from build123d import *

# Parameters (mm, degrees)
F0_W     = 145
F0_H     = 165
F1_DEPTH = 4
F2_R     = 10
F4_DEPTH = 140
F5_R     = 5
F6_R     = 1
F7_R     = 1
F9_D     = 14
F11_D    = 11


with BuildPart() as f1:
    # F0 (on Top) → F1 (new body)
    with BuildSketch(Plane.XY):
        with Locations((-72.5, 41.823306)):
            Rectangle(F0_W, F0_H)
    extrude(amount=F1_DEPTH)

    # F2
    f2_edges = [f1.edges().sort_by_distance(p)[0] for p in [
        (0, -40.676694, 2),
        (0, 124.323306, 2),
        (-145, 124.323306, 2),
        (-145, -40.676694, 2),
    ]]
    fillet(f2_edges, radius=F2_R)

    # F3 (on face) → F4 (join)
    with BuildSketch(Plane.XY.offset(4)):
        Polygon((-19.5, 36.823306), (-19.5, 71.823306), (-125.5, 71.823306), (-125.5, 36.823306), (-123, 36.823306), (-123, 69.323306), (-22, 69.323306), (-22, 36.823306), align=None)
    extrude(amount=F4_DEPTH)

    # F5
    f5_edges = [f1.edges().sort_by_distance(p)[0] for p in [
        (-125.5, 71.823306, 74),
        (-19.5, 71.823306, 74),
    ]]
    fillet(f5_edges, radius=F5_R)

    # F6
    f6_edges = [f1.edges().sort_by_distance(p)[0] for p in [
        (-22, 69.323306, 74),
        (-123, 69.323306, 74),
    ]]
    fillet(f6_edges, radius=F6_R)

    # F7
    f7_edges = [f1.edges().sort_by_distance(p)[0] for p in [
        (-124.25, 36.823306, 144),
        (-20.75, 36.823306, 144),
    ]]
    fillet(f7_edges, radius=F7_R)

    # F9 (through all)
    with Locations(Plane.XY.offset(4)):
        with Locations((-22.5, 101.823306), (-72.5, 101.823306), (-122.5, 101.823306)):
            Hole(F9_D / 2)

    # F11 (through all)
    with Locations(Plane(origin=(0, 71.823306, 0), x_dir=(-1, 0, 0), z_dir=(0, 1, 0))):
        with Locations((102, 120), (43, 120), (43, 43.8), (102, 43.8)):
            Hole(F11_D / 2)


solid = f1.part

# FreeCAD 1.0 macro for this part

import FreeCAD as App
import Part
import Sketcher

V = App.Vector


def edges_at(feature, points):
    """Names of the edges that pass closest to the given points."""
    edges = feature.Shape.Edges
    near = lambda p: min(range(len(edges)), key=lambda i: edges[i].distToShape(Part.Vertex(*p))[0])
    return sorted({f"Edge{near(p) + 1}" for p in points})


def add_polygon(sketch, points):
    """Adds a closed chain of lines whose ends are joined by coincident constraints."""
    first, n = sketch.GeometryCount, len(points)
    for a, b in zip(points, points[1:] + points[:1]):
        sketch.addGeometry(Part.LineSegment(App.Vector(*a, 0), App.Vector(*b, 0)), False)
    for i in range(n):
        sketch.addConstraint(Sketcher.Constraint("Coincident", first + i, 2, first + (i + 1) % n, 1))

doc = App.newDocument("Part")
params = doc.addObject("Spreadsheet::Sheet", "Params")
for row, (alias, value) in enumerate([
    ("sketch1_width", "145 mm"),
    ("sketch1_height", "165 mm"),
    ("pad1_length", "4 mm"),
    ("fillet_radius", "10 mm"),
    ("sketch2_width", "106 mm"),
    ("sketch2_width2", "101 mm"),
    ("sketch2_height", "35 mm"),
    ("sketch2_height2", "32.5 mm"),
    ("pad2_length", "140 mm"),
    ("fillet2_radius", "5 mm"),
    ("fillet3_radius", "1 mm"),
    ("fillet4_radius", "1 mm"),
    ("sketch3_diameter", "14 mm"),
    ("hole_diameter", "14 mm"),
    ("sketch4_diameter", "11 mm"),
    ("hole2_diameter", "11 mm"),
], start=1):
    params.set(f"A{row}", alias)
    params.set(f"B{row}", "=" + value)
    params.setAlias(f"B{row}", alias)

body = doc.addObject("PartDesign::Body", "Body")

# Sketch on XY plane
sketch1 = body.newObject("Sketcher::SketchObject", "Sketch")
sketch1.AttachmentSupport = (doc.getObject("XY_Plane"), [""])
sketch1.MapMode = "FlatFace"
add_polygon(sketch1, [(-145, 124), (-145, -41), (0, -41), (0, 124)])  # lines 0-3
sketch1.addConstraint([
    Sketcher.Constraint("Vertical", 0),
    Sketcher.Constraint("Horizontal", 1),
    Sketcher.Constraint("Vertical", 2),
    Sketcher.Constraint("Horizontal", 3),
    Sketcher.Constraint("PointOnObject", 1, 2, -2),
    Sketcher.Constraint("DistanceX", 1, 1, 1, 2, 145.0),
    Sketcher.Constraint("DistanceY", 0, 2, 0, 1, 165.0),
    Sketcher.Constraint("DistanceY", 0, 2, -1, 1, 40.676694),
])
sketch1.setExpression("Constraints[9]", "Params.sketch1_width")
sketch1.setExpression("Constraints[10]", "Params.sketch1_height")
pad1 = body.newObject("PartDesign::Pad", "Pad")
pad1.Profile = sketch1
pad1.setExpression("Length", "Params.pad1_length")
doc.recompute()

fillet = body.newObject("PartDesign::Fillet", "Fillet")
fillet.Base = (pad1, edges_at(pad1, [
    (0, -40.677, 2),
    (0, 124.323, 2),
    (-145, 124.323, 2),
    (-145, -40.677, 2),
]))
fillet.setExpression("Radius", "Params.fillet_radius")

# Sketch on XY plane
sketch2 = body.newObject("Sketcher::SketchObject", "Sketch001")
sketch2.AttachmentSupport = (doc.getObject("XY_Plane"), [""])
sketch2.MapMode = "FlatFace"
sketch2.AttachmentOffset = App.Placement(V(0, 0, 4), App.Rotation())
add_polygon(sketch2, [(-19.5, 36.8), (-19.5, 71.8), (-125.5, 71.8), (-125.5, 36.8), (-123, 36.8), (-123, 69.3), (-22, 69.3), (-22, 36.8)])  # lines 0-7
sketch2.addConstraint([
    Sketcher.Constraint("Vertical", 0),
    Sketcher.Constraint("Horizontal", 1),
    Sketcher.Constraint("Vertical", 2),
    Sketcher.Constraint("Horizontal", 3),
    Sketcher.Constraint("Vertical", 4),
    Sketcher.Constraint("Horizontal", 5),
    Sketcher.Constraint("Vertical", 6),
    Sketcher.Constraint("Horizontal", 7),
    Sketcher.Constraint("Horizontal", 3, 2, 6, 2),
    Sketcher.Constraint("Equal", 3, 7),
    Sketcher.Constraint("DistanceX", 1, 2, 1, 1, 106.0),
    Sketcher.Constraint("DistanceX", 5, 1, 5, 2, 101.0),
    Sketcher.Constraint("DistanceY", 0, 1, 0, 2, 35.0),
    Sketcher.Constraint("DistanceY", 4, 1, 4, 2, 32.5),
    Sketcher.Constraint("DistanceX", 3, 2, -1, 1, 123.0),
    Sketcher.Constraint("DistanceY", -1, 1, 0, 2, 71.823306),
])
sketch2.setExpression("Constraints[18]", "Params.sketch2_width")
sketch2.setExpression("Constraints[19]", "Params.sketch2_width2")
sketch2.setExpression("Constraints[20]", "Params.sketch2_height")
sketch2.setExpression("Constraints[21]", "Params.sketch2_height2")
pad2 = body.newObject("PartDesign::Pad", "Pad001")
pad2.Profile = sketch2
pad2.setExpression("Length", "Params.pad2_length")
doc.recompute()

fillet2 = body.newObject("PartDesign::Fillet", "Fillet001")
fillet2.Base = (pad2, edges_at(pad2, [(-125.5, 71.823, 74), (-19.5, 71.823, 74)]))
fillet2.setExpression("Radius", "Params.fillet2_radius")
doc.recompute()

fillet3 = body.newObject("PartDesign::Fillet", "Fillet002")
fillet3.Base = (fillet2, edges_at(fillet2, [(-22, 69.323, 74), (-123, 69.323, 74)]))
fillet3.setExpression("Radius", "Params.fillet3_radius")
doc.recompute()

fillet4 = body.newObject("PartDesign::Fillet", "Fillet003")
fillet4.Base = (fillet3, edges_at(fillet3, [(-124.25, 36.823, 144), (-20.75, 36.823, 144)]))
fillet4.setExpression("Radius", "Params.fillet4_radius")

# Sketch on XY plane
sketch3 = body.newObject("Sketcher::SketchObject", "Sketch002")
sketch3.AttachmentSupport = (doc.getObject("XY_Plane"), [""])
sketch3.MapMode = "FlatFace"
sketch3.AttachmentOffset = App.Placement(V(0, 0, 4), App.Rotation())
sketch3.addGeometry([
    Part.Circle(V(-22, 102, 0), V(0, 0, 1), 7),
    Part.Circle(V(-72, 102, 0), V(0, 0, 1), 7),
    Part.Circle(V(-122, 102, 0), V(0, 0, 1), 7),
], False)
sketch3.addConstraint([
    Sketcher.Constraint("Equal", 0, 1),
    Sketcher.Constraint("Equal", 1, 2),
    Sketcher.Constraint("Horizontal", 0, 3, 1, 3),
    Sketcher.Constraint("Horizontal", 1, 3, 2, 3),
    Sketcher.Constraint("Diameter", 0, 14.0),
    Sketcher.Constraint("DistanceX", 1, 3, 0, 3, 50.0),
    Sketcher.Constraint("DistanceX", 2, 3, 1, 3, 50.0),
    Sketcher.Constraint("DistanceX", 0, 3, -1, 1, 22.5),
    Sketcher.Constraint("DistanceY", -1, 1, 0, 3, 101.823306),
])
sketch3.setExpression("Constraints[4]", "Params.sketch3_diameter")
doc.recompute()
hole = body.newObject("PartDesign::Hole", "Hole")
hole.Profile = sketch3
hole.ThreadType = "None"
hole.setExpression("Diameter", "Params.hole_diameter")
hole.DepthType = "ThroughAll"

# Sketch on XZ plane
sketch4 = body.newObject("Sketcher::SketchObject", "Sketch003")
sketch4.AttachmentSupport = (doc.getObject("XZ_Plane"), [""])
sketch4.MapMode = "FlatFace"
sketch4.AttachmentOffset = App.Placement(V(0, 0, -71.823306), App.Rotation())
sketch4.addGeometry([
    Part.Circle(V(-102, 120, 0), V(0, 0, 1), 6),
    Part.Circle(V(-43, 120, 0), V(0, 0, 1), 6),
    Part.Circle(V(-43, 44, 0), V(0, 0, 1), 6),
    Part.Circle(V(-102, 44, 0), V(0, 0, 1), 6),
], False)
sketch4.addConstraint([
    Sketcher.Constraint("Equal", 0, 1),
    Sketcher.Constraint("Equal", 1, 2),
    Sketcher.Constraint("Equal", 2, 3),
    Sketcher.Constraint("Horizontal", 0, 3, 1, 3),
    Sketcher.Constraint("Horizontal", 2, 3, 3, 3),
    Sketcher.Constraint("Vertical", 1, 3, 2, 3),
    Sketcher.Constraint("Vertical", 0, 3, 3, 3),
    Sketcher.Constraint("Diameter", 0, 11.0),
    Sketcher.Constraint("DistanceX", 0, 3, -1, 1, 102.0),
    Sketcher.Constraint("DistanceY", -1, 1, 0, 3, 120.0),
    Sketcher.Constraint("DistanceX", 1, 3, -1, 1, 43.0),
    Sketcher.Constraint("DistanceY", -1, 1, 2, 3, 43.8),
])
sketch4.setExpression("Constraints[7]", "Params.sketch4_diameter")
doc.recompute()
hole2 = body.newObject("PartDesign::Hole", "Hole001")
hole2.Profile = sketch4
hole2.ThreadType = "None"
hole2.setExpression("Diameter", "Params.hole2_diameter")
hole2.DepthType = "ThroughAll"
hole2.Reversed = True

doc.recompute()
